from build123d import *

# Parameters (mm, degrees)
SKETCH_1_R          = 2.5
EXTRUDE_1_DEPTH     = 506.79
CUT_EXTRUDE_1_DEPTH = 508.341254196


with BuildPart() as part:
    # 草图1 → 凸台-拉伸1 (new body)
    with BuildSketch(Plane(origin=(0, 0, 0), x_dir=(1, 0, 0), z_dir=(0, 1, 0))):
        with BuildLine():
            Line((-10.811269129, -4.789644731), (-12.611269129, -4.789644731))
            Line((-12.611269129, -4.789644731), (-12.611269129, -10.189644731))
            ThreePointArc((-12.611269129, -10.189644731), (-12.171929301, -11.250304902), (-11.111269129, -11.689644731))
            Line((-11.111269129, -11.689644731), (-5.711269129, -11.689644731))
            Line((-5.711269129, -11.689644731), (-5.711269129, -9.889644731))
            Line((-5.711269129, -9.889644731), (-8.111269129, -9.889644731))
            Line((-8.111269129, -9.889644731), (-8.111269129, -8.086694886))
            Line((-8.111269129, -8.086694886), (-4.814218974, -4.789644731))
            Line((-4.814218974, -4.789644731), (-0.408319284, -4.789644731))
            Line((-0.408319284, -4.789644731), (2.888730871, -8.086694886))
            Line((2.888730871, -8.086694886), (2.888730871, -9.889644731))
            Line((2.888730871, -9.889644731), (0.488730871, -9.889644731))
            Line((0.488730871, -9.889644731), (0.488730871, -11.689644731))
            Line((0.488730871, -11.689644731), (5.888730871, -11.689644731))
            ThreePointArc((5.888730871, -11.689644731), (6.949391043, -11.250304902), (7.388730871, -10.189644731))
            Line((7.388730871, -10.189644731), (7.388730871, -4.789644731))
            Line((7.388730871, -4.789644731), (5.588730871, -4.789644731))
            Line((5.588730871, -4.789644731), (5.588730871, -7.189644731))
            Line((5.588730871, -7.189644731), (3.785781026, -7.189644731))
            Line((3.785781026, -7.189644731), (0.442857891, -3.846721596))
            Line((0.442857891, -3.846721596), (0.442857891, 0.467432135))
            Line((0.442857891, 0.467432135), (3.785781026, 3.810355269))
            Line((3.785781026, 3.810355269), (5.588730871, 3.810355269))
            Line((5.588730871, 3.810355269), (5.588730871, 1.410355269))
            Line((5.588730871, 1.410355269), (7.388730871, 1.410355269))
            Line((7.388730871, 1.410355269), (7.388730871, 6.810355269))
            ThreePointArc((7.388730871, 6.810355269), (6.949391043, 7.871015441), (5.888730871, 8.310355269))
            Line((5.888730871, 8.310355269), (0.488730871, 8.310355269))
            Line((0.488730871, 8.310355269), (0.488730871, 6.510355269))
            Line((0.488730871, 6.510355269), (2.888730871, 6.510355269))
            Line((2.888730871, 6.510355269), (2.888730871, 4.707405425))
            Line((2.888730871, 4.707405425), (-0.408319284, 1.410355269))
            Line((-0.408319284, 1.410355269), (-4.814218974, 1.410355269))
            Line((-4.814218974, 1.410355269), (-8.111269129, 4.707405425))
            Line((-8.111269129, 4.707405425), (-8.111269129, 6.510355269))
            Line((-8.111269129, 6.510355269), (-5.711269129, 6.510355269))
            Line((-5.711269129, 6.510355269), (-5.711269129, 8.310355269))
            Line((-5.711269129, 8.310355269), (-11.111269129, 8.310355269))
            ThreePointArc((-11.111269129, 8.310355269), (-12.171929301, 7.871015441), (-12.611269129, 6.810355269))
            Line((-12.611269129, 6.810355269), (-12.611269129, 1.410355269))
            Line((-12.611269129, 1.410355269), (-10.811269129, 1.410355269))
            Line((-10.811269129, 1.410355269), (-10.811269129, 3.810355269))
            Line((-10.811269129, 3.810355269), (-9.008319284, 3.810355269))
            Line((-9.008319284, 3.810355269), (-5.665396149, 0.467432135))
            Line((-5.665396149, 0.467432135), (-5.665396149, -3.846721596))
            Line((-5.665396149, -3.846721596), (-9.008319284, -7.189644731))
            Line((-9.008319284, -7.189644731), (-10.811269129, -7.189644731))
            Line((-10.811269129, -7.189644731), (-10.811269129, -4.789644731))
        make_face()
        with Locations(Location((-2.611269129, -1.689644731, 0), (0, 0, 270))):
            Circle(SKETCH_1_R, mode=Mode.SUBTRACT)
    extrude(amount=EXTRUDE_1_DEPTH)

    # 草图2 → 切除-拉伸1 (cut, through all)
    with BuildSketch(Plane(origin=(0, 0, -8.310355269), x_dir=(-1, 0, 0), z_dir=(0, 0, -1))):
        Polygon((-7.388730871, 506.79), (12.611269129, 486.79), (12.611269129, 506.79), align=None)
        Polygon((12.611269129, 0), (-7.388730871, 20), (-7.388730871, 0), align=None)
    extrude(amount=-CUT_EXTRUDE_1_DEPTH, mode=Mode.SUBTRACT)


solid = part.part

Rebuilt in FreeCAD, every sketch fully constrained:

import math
import FreeCAD as App
import Part
import Sketcher

doc = App.newDocument("Part")
body = doc.addObject("PartDesign::Body", "Body")

sketch1 = body.newObject("Sketcher::SketchObject", "Sketch")
sketch1.AttachmentSupport = (doc.getObject("XZ_Plane"), [""])
sketch1.MapMode = "FlatFace"
sketch1.addGeometry(Part.LineSegment(App.Vector(-10.8, 4.8, 0), App.Vector(-12.6, 4.8, 0)), False)
sketch1.addGeometry(Part.LineSegment(App.Vector(-12.6, 4.8, 0), App.Vector(-12.6, 10.2, 0)), False)
sketch1.addGeometry(Part.ArcOfCircle(Part.Circle(App.Vector(-11.1, 10.2, 0), App.Vector(0, 0, 1), 1.5), math.radians(90), math.radians(180)), False)
sketch1.addGeometry(Part.LineSegment(App.Vector(-11.1, 11.7, 0), App.Vector(-5.7, 11.7, 0)), False)
sketch1.addGeometry(Part.LineSegment(App.Vector(-5.7, 11.7, 0), App.Vector(-5.7, 9.9, 0)), False)
sketch1.addGeometry(Part.LineSegment(App.Vector(-5.7, 9.9, 0), App.Vector(-8.1, 9.9, 0)), False)
sketch1.addGeometry(Part.LineSegment(App.Vector(-8.1, 9.9, 0), App.Vector(-8.1, 8.1, 0)), False)
sketch1.addGeometry(Part.LineSegment(App.Vector(-8.1, 8.1, 0), App.Vector(-4.8, 4.8, 0)), False)
sketch1.addGeometry(Part.LineSegment(App.Vector(-4.8, 4.8, 0), App.Vector(-0.4, 4.8, 0)), False)
sketch1.addGeometry(Part.LineSegment(App.Vector(-0.4, 4.8, 0), App.Vector(2.9, 8.1, 0)), False)
sketch1.addGeometry(Part.LineSegment(App.Vector(2.9, 8.1, 0), App.Vector(2.9, 9.9, 0)), False)
sketch1.addGeometry(Part.LineSegment(App.Vector(2.9, 9.9, 0), App.Vector(0.5, 9.9, 0)), False)
sketch1.addGeometry(Part.LineSegment(App.Vector(0.5, 9.9, 0), App.Vector(0.5, 11.7, 0)), False)
sketch1.addGeometry(Part.LineSegment(App.Vector(0.5, 11.7, 0), App.Vector(5.9, 11.7, 0)), False)
sketch1.addGeometry(Part.ArcOfCircle(Part.Circle(App.Vector(5.9, 10.2, 0), App.Vector(0, 0, 1), 1.5), math.radians(0), math.radians(90)), False)
sketch1.addGeometry(Part.LineSegment(App.Vector(7.4, 10.2, 0), App.Vector(7.4, 4.8, 0)), False)
sketch1.addGeometry(Part.LineSegment(App.Vector(7.4, 4.8, 0), App.Vector(5.6, 4.8, 0)), False)
sketch1.addGeometry(Part.LineSegment(App.Vector(5.6, 4.8, 0), App.Vector(5.6, 7.2, 0)), False)
sketch1.addGeometry(Part.LineSegment(App.Vector(5.6, 7.2, 0), App.Vector(3.8, 7.2, 0)), False)
sketch1.addGeometry(Part.LineSegment(App.Vector(3.8, 7.2, 0), App.Vector(0.4, 3.8, 0)), False)
sketch1.addGeometry(Part.LineSegment(App.Vector(0.4, 3.8, 0), App.Vector(0.4, -0.5, 0)), False)
sketch1.addGeometry(Part.LineSegment(App.Vector(0.4, -0.5, 0), App.Vector(3.8, -3.8, 0)), False)
sketch1.addGeometry(Part.LineSegment(App.Vector(3.8, -3.8, 0), App.Vector(5.6, -3.8, 0)), False)
sketch1.addGeometry(Part.LineSegment(App.Vector(5.6, -3.8, 0), App.Vector(5.6, -1.4, 0)), False)
sketch1.addGeometry(Part.LineSegment(App.Vector(5.6, -1.4, 0), App.Vector(7.4, -1.4, 0)), False)
sketch1.addGeometry(Part.LineSegment(App.Vector(7.4, -1.4, 0), App.Vector(7.4, -6.8, 0)), False)
sketch1.addGeometry(Part.ArcOfCircle(Part.Circle(App.Vector(5.9, -6.8, 0), App.Vector(0, 0, 1), 1.5), math.radians(-90), math.radians(0)), False)
sketch1.addGeometry(Part.LineSegment(App.Vector(5.9, -8.3, 0), App.Vector(0.5, -8.3, 0)), False)
sketch1.addGeometry(Part.LineSegment(App.Vector(0.5, -8.3, 0), App.Vector(0.5, -6.5, 0)), False)
sketch1.addGeometry(Part.LineSegment(App.Vector(0.5, -6.5, 0), App.Vector(2.9, -6.5, 0)), False)
sketch1.addGeometry(Part.LineSegment(App.Vector(2.9, -6.5, 0), App.Vector(2.9, -4.7, 0)), False)
sketch1.addGeometry(Part.LineSegment(App.Vector(2.9, -4.7, 0), App.Vector(-0.4, -1.4, 0)), False)
sketch1.addGeometry(Part.LineSegment(App.Vector(-0.4, -1.4, 0), App.Vector(-4.8, -1.4, 0)), False)
sketch1.addGeometry(Part.LineSegment(App.Vector(-4.8, -1.4, 0), App.Vector(-8.1, -4.7, 0)), False)
sketch1.addGeometry(Part.LineSegment(App.Vector(-8.1, -4.7, 0), App.Vector(-8.1, -6.5, 0)), False)
sketch1.addGeometry(Part.LineSegment(App.Vector(-8.1, -6.5, 0), App.Vector(-5.7, -6.5, 0)), False)
sketch1.addGeometry(Part.LineSegment(App.Vector(-5.7, -6.5, 0), App.Vector(-5.7, -8.3, 0)), False)
sketch1.addGeometry(Part.LineSegment(App.Vector(-5.7, -8.3, 0), App.Vector(-11.1, -8.3, 0)), False)
sketch1.addGeometry(Part.ArcOfCircle(Part.Circle(App.Vector(-11.1, -6.8, 0), App.Vector(0, 0, 1), 1.5), math.radians(180), math.radians(270)), False)
sketch1.addGeometry(Part.LineSegment(App.Vector(-12.6, -6.8, 0), App.Vector(-12.6, -1.4, 0)), False)
sketch1.addGeometry(Part.LineSegment(App.Vector(-12.6, -1.4, 0), App.Vector(-10.8, -1.4, 0)), False)
sketch1.addGeometry(Part.LineSegment(App.Vector(-10.8, -1.4, 0), App.Vector(-10.8, -3.8, 0)), False)
sketch1.addGeometry(Part.LineSegment(App.Vector(-10.8, -3.8, 0), App.Vector(-9, -3.8, 0)), False)
sketch1.addGeometry(Part.LineSegment(App.Vector(-9, -3.8, 0), App.Vector(-5.7, -0.5, 0)), False)
sketch1.addGeometry(Part.LineSegment(App.Vector(-5.7, -0.5, 0), App.Vector(-5.7, 3.8, 0)), False)
sketch1.addGeometry(Part.LineSegment(App.Vector(-5.7, 3.8, 0), App.Vector(-9, 7.2, 0)), False)
sketch1.addGeometry(Part.LineSegment(App.Vector(-9, 7.2, 0), App.Vector(-10.8, 7.2, 0)), False)
sketch1.addGeometry(Part.LineSegment(App.Vector(-10.8, 7.2, 0), App.Vector(-10.8, 4.8, 0)), False)
sketch1.addGeometry(Part.Circle(App.Vector(-2.6, 1.7, 0), App.Vector(0, 0, 1), 2.5), False)
sketch1.addConstraint(Sketcher.Constraint("Coincident", 0, 2, 1, 1))
sketch1.addConstraint(Sketcher.Constraint("Tangent", 1, 2, 2, 2))
sketch1.addConstraint(Sketcher.Constraint("Tangent", 2, 1, 3, 1))
sketch1.addConstraint(Sketcher.Constraint("Coincident", 3, 2, 4, 1))
sketch1.addConstraint(Sketcher.Constraint("Coincident", 4, 2, 5, 1))
sketch1.addConstraint(Sketcher.Constraint("Coincident", 5, 2, 6, 1))
sketch1.addConstraint(Sketcher.Constraint("Coincident", 6, 2, 7, 1))
sketch1.addConstraint(Sketcher.Constraint("Coincident", 7, 2, 8, 1))
sketch1.addConstraint(Sketcher.Constraint("Coincident", 8, 2, 9, 1))
sketch1.addConstraint(Sketcher.Constraint("Coincident", 9, 2, 10, 1))
sketch1.addConstraint(Sketcher.Constraint("Coincident", 10, 2, 11, 1))
sketch1.addConstraint(Sketcher.Constraint("Coincident", 11, 2, 12, 1))
sketch1.addConstraint(Sketcher.Constraint("Coincident", 12, 2, 13, 1))
sketch1.addConstraint(Sketcher.Constraint("Tangent", 13, 2, 14, 2))
sketch1.addConstraint(Sketcher.Constraint("Tangent", 14, 1, 15, 1))
sketch1.addConstraint(Sketcher.Constraint("Coincident", 15, 2, 16, 1))
sketch1.addConstraint(Sketcher.Constraint("Coincident", 16, 2, 17, 1))
sketch1.addConstraint(Sketcher.Constraint("Coincident", 17, 2, 18, 1))
sketch1.addConstraint(Sketcher.Constraint("Coincident", 18, 2, 19, 1))
sketch1.addConstraint(Sketcher.Constraint("Coincident", 19, 2, 20, 1))
sketch1.addConstraint(Sketcher.Constraint("Coincident", 20, 2, 21, 1))
sketch1.addConstraint(Sketcher.Constraint("Coincident", 21, 2, 22, 1))
sketch1.addConstraint(Sketcher.Constraint("Coincident", 22, 2, 23, 1))
sketch1.addConstraint(Sketcher.Constraint("Coincident", 23, 2, 24, 1))
sketch1.addConstraint(Sketcher.Constraint("Coincident", 24, 2, 25, 1))
sketch1.addConstraint(Sketcher.Constraint("Tangent", 25, 2, 26, 2))
sketch1.addConstraint(Sketcher.Constraint("Tangent", 26, 1, 27, 1))
sketch1.addConstraint(Sketcher.Constraint("Coincident", 27, 2, 28, 1))
sketch1.addConstraint(Sketcher.Constraint("Coincident", 28, 2, 29, 1))
sketch1.addConstraint(Sketcher.Constraint("Coincident", 29, 2, 30, 1))
sketch1.addConstraint(Sketcher.Constraint("Coincident", 30, 2, 31, 1))
sketch1.addConstraint(Sketcher.Constraint("Coincident", 31, 2, 32, 1))
sketch1.addConstraint(Sketcher.Constraint("Coincident", 32, 2, 33, 1))
sketch1.addConstraint(Sketcher.Constraint("Coincident", 33, 2, 34, 1))
sketch1.addConstraint(Sketcher.Constraint("Coincident", 34, 2, 35, 1))
sketch1.addConstraint(Sketcher.Constraint("Coincident", 35, 2, 36, 1))
sketch1.addConstraint(Sketcher.Constraint("Coincident", 36, 2, 37, 1))
sketch1.addConstraint(Sketcher.Constraint("Tangent", 37, 2, 38, 2))
sketch1.addConstraint(Sketcher.Constraint("Tangent", 38, 1, 39, 1))
sketch1.addConstraint(Sketcher.Constraint("Coincident", 39, 2, 40, 1))
sketch1.addConstraint(Sketcher.Constraint("Coincident", 40, 2, 41, 1))
sketch1.addConstraint(Sketcher.Constraint("Coincident", 41, 2, 42, 1))
sketch1.addConstraint(Sketcher.Constraint("Coincident", 42, 2, 43, 1))
sketch1.addConstraint(Sketcher.Constraint("Coincident", 43, 2, 44, 1))
sketch1.addConstraint(Sketcher.Constraint("Coincident", 44, 2, 45, 1))
sketch1.addConstraint(Sketcher.Constraint("Coincident", 45, 2, 46, 1))
sketch1.addConstraint(Sketcher.Constraint("Coincident", 46, 2, 47, 1))
sketch1.addConstraint(Sketcher.Constraint("Coincident", 47, 2, 0, 1))
sketch1.addConstraint(Sketcher.Constraint("Horizontal", 0))
sketch1.addConstraint(Sketcher.Constraint("Vertical", 1))
sketch1.addConstraint(Sketcher.Constraint("Horizontal", 3))
sketch1.addConstraint(Sketcher.Constraint("Vertical", 4))
sketch1.addConstraint(Sketcher.Constraint("Horizontal", 5))
sketch1.addConstraint(Sketcher.Constraint("Vertical", 6))
sketch1.addConstraint(Sketcher.Constraint("Horizontal", 8))
sketch1.addConstraint(Sketcher.Constraint("Vertical", 10))
sketch1.addConstraint(Sketcher.Constraint("Horizontal", 11))
sketch1.addConstraint(Sketcher.Constraint("Vertical", 12))
sketch1.addConstraint(Sketcher.Constraint("Horizontal", 13))
sketch1.addConstraint(Sketcher.Constraint("Vertical", 15))
sketch1.addConstraint(Sketcher.Constraint("Horizontal", 16))
sketch1.addConstraint(Sketcher.Constraint("Vertical", 17))
sketch1.addConstraint(Sketcher.Constraint("Horizontal", 18))
sketch1.addConstraint(Sketcher.Constraint("Vertical", 20))
sketch1.addConstraint(Sketcher.Constraint("Horizontal", 22))
sketch1.addConstraint(Sketcher.Constraint("Vertical", 23))
sketch1.addConstraint(Sketcher.Constraint("Horizontal", 24))
sketch1.addConstraint(Sketcher.Constraint("Vertical", 25))
sketch1.addConstraint(Sketcher.Constraint("Horizontal", 27))
sketch1.addConstraint(Sketcher.Constraint("Vertical", 28))
sketch1.addConstraint(Sketcher.Constraint("Horizontal", 29))
sketch1.addConstraint(Sketcher.Constraint("Vertical", 30))
sketch1.addConstraint(Sketcher.Constraint("Horizontal", 32))
sketch1.addConstraint(Sketcher.Constraint("Vertical", 34))
sketch1.addConstraint(Sketcher.Constraint("Horizontal", 35))
sketch1.addConstraint(Sketcher.Constraint("Vertical", 36))
sketch1.addConstraint(Sketcher.Constraint("Horizontal", 37))
sketch1.addConstraint(Sketcher.Constraint("Vertical", 39))
sketch1.addConstraint(Sketcher.Constraint("Horizontal", 40))
sketch1.addConstraint(Sketcher.Constraint("Vertical", 41))
sketch1.addConstraint(Sketcher.Constraint("Horizontal", 42))
sketch1.addConstraint(Sketcher.Constraint("Vertical", 44))
sketch1.addConstraint(Sketcher.Constraint("Horizontal", 46))
sketch1.addConstraint(Sketcher.Constraint("Vertical", 47))
sketch1.addConstraint(Sketcher.Constraint("Equal", 2, 14))
sketch1.addConstraint(Sketcher.Constraint("Equal", 14, 26))
sketch1.addConstraint(Sketcher.Constraint("Equal", 26, 38))
sketch1.addConstraint(Sketcher.Constraint("Perpendicular", 7, 9))
sketch1.addConstraint(Sketcher.Constraint("Parallel", 9, 19))
sketch1.addConstraint(Sketcher.Constraint("Perpendicular", 19, 21))
sketch1.addConstraint(Sketcher.Constraint("Parallel", 21, 31))
sketch1.addConstraint(Sketcher.Constraint("Perpendicular", 31, 33))
sketch1.addConstraint(Sketcher.Constraint("Parallel", 33, 43))
sketch1.addConstraint(Sketcher.Constraint("Perpendicular", 43, 45))
sketch1.addConstraint(Sketcher.Constraint("Horizontal", 2, 3, 14, 3))
sketch1.addConstraint(Sketcher.Constraint("Horizontal", 26, 3, 38, 3))
sketch1.addConstraint(Sketcher.Constraint("Horizontal", 0, 2, 7, 2))
sketch1.addConstraint(Sketcher.Constraint("Horizontal", 6, 2, 9, 2))
sketch1.addConstraint(Sketcher.Constraint("Horizontal", 5, 2, 10, 2))
sketch1.addConstraint(Sketcher.Constraint("Horizontal", 8, 2, 15, 2))
sketch1.addConstraint(Sketcher.Constraint("Horizontal", 24, 2, 31, 2))
sketch1.addConstraint(Sketcher.Constraint("Horizontal", 30, 2, 33, 2))
sketch1.addConstraint(Sketcher.Constraint("Horizontal", 29, 2, 34, 2))
sketch1.addConstraint(Sketcher.Constraint("Horizontal", 32, 2, 39, 2))
sketch1.addConstraint(Sketcher.Constraint("Horizontal", 22, 2, 41, 2))
sketch1.addConstraint(Sketcher.Constraint("Horizontal", 20, 2, 43, 2))
sketch1.addConstraint(Sketcher.Constraint("Horizontal", 19, 2, 44, 2))
sketch1.addConstraint(Sketcher.Constraint("Horizontal", 18, 2, 45, 2))
sketch1.addConstraint(Sketcher.Constraint("Vertical", 14, 3, 26, 3))
sketch1.addConstraint(Sketcher.Constraint("Vertical", 2, 3, 38, 3))
sketch1.addConstraint(Sketcher.Constraint("Vertical", 18, 2, 21, 2))
sketch1.addConstraint(Sketcher.Constraint("Vertical", 17, 2, 22, 2))
sketch1.addConstraint(Sketcher.Constraint("Vertical", 12, 2, 27, 2))
sketch1.addConstraint(Sketcher.Constraint("Vertical", 10, 2, 29, 2))
sketch1.addConstraint(Sketcher.Constraint("Vertical", 8, 2, 31, 2))
sketch1.addConstraint(Sketcher.Constraint("Vertical", 7, 2, 32, 2))
sketch1.addConstraint(Sketcher.Constraint("Vertical", 6, 2, 33, 2))
sketch1.addConstraint(Sketcher.Constraint("Vertical", 4, 2, 35, 2))
sketch1.addConstraint(Sketcher.Constraint("Vertical", 41, 2, 46, 2))
sketch1.addConstraint(Sketcher.Constraint("Equal", 5, 11))
sketch1.addConstraint(Sketcher.Constraint("Equal", 3, 13))
sketch1.addConstraint(Sketcher.Constraint("Equal", 0, 16))
sketch1.addConstraint(Sketcher.Constraint("Equal", 22, 42))
sketch1.addConstraint(Sketcher.Constraint("Equal", 37, 1))
sketch1.addConstraint(Sketcher.Constraint("Equal", 40, 4))
sketch1.addConstraint(Sketcher.Constraint("Equal", 46, 6))
sketch1.addConstraint(Sketcher.Constraint("Equal", 35, 17))
sketch1.addConstraint(Sketcher.Constraint("Equal", 17, 23))
sketch1.addConstraint(Sketcher.Constraint("Equal", 15, 25))
sketch1.addConstraint(Sketcher.Constraint("Equal", 12, 28))
sketch1.addConstraint(Sketcher.Constraint("Diameter", 48, 5.0))
sketch1.addConstraint(Sketcher.Constraint("Radius", 2, 1.5))
sketch1.addConstraint(Sketcher.Constraint("DistanceX", 0, 2, 0, 1, 1.8))
sketch1.addConstraint(Sketcher.Constraint("DistanceX", 3, 1, 3, 2, 5.4))
sketch1.addConstraint(Sketcher.Constraint("DistanceX", 5, 2, 5, 1, 2.4))
sketch1.addConstraint(Sketcher.Constraint("DistanceX", 2, 3, 14, 3, 17.0))
sketch1.addConstraint(Sketcher.Constraint("DistanceY", 26, 3, 14, 3, 17.0))
sketch1.addConstraint(Sketcher.Constraint("DistanceX", 0, 2, 48, 3, 10.0))
sketch1.addConstraint(Sketcher.Constraint("DistanceY", 48, 3, 2, 1, 10.0))
sketch1.addConstraint(Sketcher.Constraint("DistanceX", 8, 1, 8, 2, 4.4059))
sketch1.addConstraint(Sketcher.Constraint("DistanceY", 20, 2, 20, 1, 4.314154))
sketch1.addConstraint(Sketcher.Constraint("DistanceX", 2, 3, -1, 1, 11.111269))
sketch1.addConstraint(Sketcher.Constraint("DistanceY", -1, 1, 19, 2, 3.846722))
pad1 = body.newObject("PartDesign::Pad", "Pad")
pad1.Profile = sketch1
pad1.Length = 506.79
pad1.Reversed = True

sketch2 = body.newObject("Sketcher::SketchObject", "Sketch001")
sketch2.AttachmentSupport = (doc.getObject("XY_Plane"), [""])
sketch2.MapMode = "FlatFace"
sketch2.AttachmentOffset = App.Placement(App.Vector(0, 0, -8.310355), App.Rotation())
sketch2.addGeometry(Part.LineSegment(App.Vector(7, 507, 0), App.Vector(-13, 487, 0)), False)
sketch2.addGeometry(Part.LineSegment(App.Vector(-13, 487, 0), App.Vector(-13, 507, 0)), False)
sketch2.addGeometry(Part.LineSegment(App.Vector(-13, 507, 0), App.Vector(7, 507, 0)), False)
sketch2.addGeometry(Part.LineSegment(App.Vector(-13, 0, 0), App.Vector(7, 20, 0)), False)
sketch2.addGeometry(Part.LineSegment(App.Vector(7, 20, 0), App.Vector(7, 0, 0)), False)
sketch2.addGeometry(Part.LineSegment(App.Vector(7, 0, 0), App.Vector(-13, 0, 0)), False)
sketch2.addConstraint(Sketcher.Constraint("Coincident", 0, 2, 1, 1))
sketch2.addConstraint(Sketcher.Constraint("Coincident", 1, 2, 2, 1))
sketch2.addConstraint(Sketcher.Constraint("Coincident", 2, 2, 0, 1))
sketch2.addConstraint(Sketcher.Constraint("Coincident", 3, 2, 4, 1))
sketch2.addConstraint(Sketcher.Constraint("Coincident", 4, 2, 5, 1))
sketch2.addConstraint(Sketcher.Constraint("Coincident", 5, 2, 3, 1))
sketch2.addConstraint(Sketcher.Constraint("Vertical", 1))
sketch2.addConstraint(Sketcher.Constraint("Horizontal", 2))
sketch2.addConstraint(Sketcher.Constraint("Vertical", 4))
sketch2.addConstraint(Sketcher.Constraint("Horizontal", 5))
sketch2.addConstraint(Sketcher.Constraint("PointOnObject", 4, 2, -1))
sketch2.addConstraint(Sketcher.Constraint("Parallel", 0, 3))
sketch2.addConstraint(Sketcher.Constraint("Vertical", 2, 2, 3, 2))
sketch2.addConstraint(Sketcher.Constraint("Vertical", 1, 2, 5, 2))
sketch2.addConstraint(Sketcher.Constraint("Equal", 5, 1))
sketch2.addConstraint(Sketcher.Constraint("DistanceX", 2, 1, 2, 2, 20.0))
sketch2.addConstraint(Sketcher.Constraint("DistanceY", -1, 1, 0, 2, 486.79))
sketch2.addConstraint(Sketcher.Constraint("DistanceX", 0, 2, -1, 1, 12.611269))
pocket1 = body.newObject("PartDesign::Pocket", "Pocket")
pocket1.Profile = sketch2
pocket1.Type = "ThroughAll"
pocket1.Reversed = True

doc.recompute()
